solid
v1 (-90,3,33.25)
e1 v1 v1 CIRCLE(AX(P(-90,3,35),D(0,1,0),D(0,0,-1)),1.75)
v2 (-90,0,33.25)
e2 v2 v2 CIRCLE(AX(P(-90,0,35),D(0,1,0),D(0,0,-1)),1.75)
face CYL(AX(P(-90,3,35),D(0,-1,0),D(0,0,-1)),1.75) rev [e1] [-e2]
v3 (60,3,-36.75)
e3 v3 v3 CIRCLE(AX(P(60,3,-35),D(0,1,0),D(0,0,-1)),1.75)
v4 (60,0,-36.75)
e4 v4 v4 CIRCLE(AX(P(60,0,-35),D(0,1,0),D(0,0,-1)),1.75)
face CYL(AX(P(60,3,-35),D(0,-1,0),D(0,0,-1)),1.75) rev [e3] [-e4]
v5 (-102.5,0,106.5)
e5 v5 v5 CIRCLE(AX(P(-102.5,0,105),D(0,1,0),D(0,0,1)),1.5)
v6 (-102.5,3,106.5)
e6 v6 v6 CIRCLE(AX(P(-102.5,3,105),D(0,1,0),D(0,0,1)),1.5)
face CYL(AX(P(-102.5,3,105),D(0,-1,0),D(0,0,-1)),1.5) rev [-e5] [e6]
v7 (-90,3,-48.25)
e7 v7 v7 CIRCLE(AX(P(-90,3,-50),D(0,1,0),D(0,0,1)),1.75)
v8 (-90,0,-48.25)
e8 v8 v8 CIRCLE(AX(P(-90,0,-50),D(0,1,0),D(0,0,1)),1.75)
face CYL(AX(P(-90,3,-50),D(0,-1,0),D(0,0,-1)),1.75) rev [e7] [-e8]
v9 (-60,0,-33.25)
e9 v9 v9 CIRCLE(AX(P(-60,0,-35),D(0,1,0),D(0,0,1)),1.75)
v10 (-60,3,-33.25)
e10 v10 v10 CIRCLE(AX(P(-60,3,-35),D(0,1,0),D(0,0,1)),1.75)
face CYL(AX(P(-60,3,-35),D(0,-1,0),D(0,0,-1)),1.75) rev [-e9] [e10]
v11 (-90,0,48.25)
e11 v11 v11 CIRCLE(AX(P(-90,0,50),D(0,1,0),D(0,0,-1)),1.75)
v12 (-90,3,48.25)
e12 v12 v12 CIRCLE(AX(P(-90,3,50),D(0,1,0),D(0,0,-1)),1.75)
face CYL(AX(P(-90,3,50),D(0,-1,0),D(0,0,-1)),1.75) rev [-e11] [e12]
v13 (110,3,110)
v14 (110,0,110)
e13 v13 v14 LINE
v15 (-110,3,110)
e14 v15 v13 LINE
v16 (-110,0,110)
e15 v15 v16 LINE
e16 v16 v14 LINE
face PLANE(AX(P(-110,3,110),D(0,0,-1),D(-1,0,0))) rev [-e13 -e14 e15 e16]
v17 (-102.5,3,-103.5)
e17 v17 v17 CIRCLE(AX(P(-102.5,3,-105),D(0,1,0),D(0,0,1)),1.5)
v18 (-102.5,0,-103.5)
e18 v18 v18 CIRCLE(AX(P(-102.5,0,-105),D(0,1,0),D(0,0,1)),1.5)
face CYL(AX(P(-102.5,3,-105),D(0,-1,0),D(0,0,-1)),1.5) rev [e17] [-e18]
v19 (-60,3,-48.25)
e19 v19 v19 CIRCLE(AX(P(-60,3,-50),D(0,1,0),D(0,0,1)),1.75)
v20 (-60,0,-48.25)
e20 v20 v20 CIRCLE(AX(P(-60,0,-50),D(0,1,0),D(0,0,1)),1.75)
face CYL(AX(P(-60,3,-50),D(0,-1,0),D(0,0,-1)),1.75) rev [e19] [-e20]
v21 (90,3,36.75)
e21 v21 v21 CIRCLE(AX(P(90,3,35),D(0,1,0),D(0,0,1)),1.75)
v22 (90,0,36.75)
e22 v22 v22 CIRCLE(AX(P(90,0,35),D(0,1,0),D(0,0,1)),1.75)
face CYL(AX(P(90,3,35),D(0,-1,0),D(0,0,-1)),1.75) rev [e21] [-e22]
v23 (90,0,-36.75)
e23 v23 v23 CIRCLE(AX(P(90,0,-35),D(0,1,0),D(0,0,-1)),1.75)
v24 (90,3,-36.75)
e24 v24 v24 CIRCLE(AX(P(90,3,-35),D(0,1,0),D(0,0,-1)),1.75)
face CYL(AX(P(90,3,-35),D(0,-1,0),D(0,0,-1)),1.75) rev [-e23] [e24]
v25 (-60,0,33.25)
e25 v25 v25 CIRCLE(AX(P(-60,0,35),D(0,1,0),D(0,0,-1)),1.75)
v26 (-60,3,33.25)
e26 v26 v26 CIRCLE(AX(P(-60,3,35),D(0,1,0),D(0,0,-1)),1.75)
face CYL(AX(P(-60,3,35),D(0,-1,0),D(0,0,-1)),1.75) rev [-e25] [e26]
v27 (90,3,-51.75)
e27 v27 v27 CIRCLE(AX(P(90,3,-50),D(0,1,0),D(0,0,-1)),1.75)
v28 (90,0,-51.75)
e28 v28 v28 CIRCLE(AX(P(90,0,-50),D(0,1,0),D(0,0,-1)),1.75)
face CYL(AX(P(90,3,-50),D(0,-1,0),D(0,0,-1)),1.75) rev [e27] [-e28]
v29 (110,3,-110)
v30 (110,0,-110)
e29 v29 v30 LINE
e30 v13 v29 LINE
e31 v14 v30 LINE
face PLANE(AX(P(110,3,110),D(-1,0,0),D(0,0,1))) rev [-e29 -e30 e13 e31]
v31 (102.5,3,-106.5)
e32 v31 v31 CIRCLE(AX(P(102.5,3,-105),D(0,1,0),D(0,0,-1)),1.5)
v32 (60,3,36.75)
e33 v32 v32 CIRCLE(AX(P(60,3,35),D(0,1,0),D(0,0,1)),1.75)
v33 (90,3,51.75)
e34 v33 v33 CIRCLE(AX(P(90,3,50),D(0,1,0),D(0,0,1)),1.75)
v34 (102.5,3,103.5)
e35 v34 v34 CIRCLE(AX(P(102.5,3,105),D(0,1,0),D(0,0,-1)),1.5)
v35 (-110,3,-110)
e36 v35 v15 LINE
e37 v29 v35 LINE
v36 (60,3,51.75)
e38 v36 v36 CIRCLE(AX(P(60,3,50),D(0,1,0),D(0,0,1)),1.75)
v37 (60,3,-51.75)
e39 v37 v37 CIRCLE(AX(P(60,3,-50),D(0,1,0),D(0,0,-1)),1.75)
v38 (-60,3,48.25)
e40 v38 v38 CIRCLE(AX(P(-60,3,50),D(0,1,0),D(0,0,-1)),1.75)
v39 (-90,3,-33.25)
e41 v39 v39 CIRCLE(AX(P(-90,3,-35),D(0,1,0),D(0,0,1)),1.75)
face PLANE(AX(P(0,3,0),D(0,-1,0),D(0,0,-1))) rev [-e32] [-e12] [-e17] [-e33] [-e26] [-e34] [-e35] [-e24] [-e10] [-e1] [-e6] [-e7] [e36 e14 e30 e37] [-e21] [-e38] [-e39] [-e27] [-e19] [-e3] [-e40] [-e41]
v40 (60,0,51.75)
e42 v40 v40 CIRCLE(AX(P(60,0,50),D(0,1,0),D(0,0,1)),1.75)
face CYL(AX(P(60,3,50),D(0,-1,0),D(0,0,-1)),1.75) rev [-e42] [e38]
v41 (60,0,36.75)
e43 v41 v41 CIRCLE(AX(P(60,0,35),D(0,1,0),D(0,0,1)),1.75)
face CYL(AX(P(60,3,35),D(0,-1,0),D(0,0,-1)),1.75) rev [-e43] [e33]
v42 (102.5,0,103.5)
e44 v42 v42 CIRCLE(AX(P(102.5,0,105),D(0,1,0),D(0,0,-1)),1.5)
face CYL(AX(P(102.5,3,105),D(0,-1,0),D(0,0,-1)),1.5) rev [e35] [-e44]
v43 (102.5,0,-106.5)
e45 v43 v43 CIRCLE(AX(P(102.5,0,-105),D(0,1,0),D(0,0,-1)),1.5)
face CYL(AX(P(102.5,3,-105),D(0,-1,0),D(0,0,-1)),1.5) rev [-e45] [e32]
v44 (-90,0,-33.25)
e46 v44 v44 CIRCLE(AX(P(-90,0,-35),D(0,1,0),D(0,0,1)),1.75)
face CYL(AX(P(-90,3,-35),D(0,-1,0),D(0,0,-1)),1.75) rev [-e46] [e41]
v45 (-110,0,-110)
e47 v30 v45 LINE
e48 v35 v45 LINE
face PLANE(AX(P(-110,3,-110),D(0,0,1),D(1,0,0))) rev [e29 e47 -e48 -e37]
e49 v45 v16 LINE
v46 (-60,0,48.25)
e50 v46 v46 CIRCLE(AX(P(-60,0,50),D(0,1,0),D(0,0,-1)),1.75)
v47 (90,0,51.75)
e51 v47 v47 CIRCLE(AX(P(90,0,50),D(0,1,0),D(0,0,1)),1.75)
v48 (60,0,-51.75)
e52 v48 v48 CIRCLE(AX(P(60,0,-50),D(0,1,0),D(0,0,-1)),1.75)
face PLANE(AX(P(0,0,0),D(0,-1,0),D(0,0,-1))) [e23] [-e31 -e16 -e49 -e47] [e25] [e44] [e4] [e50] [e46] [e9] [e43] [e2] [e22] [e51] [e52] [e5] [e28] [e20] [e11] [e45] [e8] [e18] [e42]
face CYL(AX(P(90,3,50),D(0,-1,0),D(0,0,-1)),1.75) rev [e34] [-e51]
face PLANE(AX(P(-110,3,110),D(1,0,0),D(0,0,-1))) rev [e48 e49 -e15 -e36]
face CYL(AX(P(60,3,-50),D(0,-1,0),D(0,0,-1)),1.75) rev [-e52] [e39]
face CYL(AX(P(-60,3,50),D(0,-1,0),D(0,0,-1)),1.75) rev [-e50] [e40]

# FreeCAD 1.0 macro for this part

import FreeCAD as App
import Part
import Sketcher
from FreeCAD import Vector


def add_polygon(sketch, points):
    """Adds a closed chain of lines whose ends are joined by coincident constraints."""
    first, n = sketch.GeometryCount, len(points)
    for a, b in zip(points, points[1:] + points[:1]):
        sketch.addGeometry(Part.LineSegment(App.Vector(*a, 0), App.Vector(*b, 0)), False)
    for i in range(n):
        sketch.addConstraint(Sketcher.Constraint("Coincident", first + i, 2, first + (i + 1) % n, 1))

doc = App.newDocument("Part")
body = doc.addObject("PartDesign::Body", "Body")

sketch1 = body.newObject("Sketcher::SketchObject", "Sketch")
sketch1.AttachmentSupport = (doc.getObject("XZ_Plane"), [""])
sketch1.MapMode = "FlatFace"
add_polygon(sketch1, [(-110, -110), (-110, 110), (110, 110), (110, -110)])
sketch1.addGeometry(Part.Circle(Vector(-102.5, 105, 0), Vector(0, 0, 1), 1.5), False)
sketch1.addGeometry(Part.Circle(Vector(-90, 50, 0), Vector(0, 0, 1), 1.8), False)
sketch1.addGeometry(Part.Circle(Vector(-90, 35, 0), Vector(0, 0, 1), 1.8), False)
sketch1.addGeometry(Part.Circle(Vector(-60, 50, 0), Vector(0, 0, 1), 1.8), False)
sketch1.addGeometry(Part.Circle(Vector(-60, 35, 0), Vector(0, 0, 1), 1.8), False)
sketch1.addGeometry(Part.Circle(Vector(102.5, 105, 0), Vector(0, 0, 1), 1.5), False)
sketch1.addGeometry(Part.Circle(Vector(60, 50, 0), Vector(0, 0, 1), 1.8), False)
sketch1.addGeometry(Part.Circle(Vector(60, 35, 0), Vector(0, 0, 1), 1.8), False)
sketch1.addGeometry(Part.Circle(Vector(90, 50, 0), Vector(0, 0, 1), 1.8), False)
sketch1.addGeometry(Part.Circle(Vector(90, 35, 0), Vector(0, 0, 1), 1.8), False)
sketch1.addGeometry(Part.Circle(Vector(-90, -35, 0), Vector(0, 0, 1), 1.8), False)
sketch1.addGeometry(Part.Circle(Vector(-90, -50, 0), Vector(0, 0, 1), 1.8), False)
sketch1.addGeometry(Part.Circle(Vector(-60, -35, 0), Vector(0, 0, 1), 1.8), False)
sketch1.addGeometry(Part.Circle(Vector(-60, -50, 0), Vector(0, 0, 1), 1.8), False)
sketch1.addGeometry(Part.Circle(Vector(-102.5, -105, 0), Vector(0, 0, 1), 1.5), False)
sketch1.addGeometry(Part.Circle(Vector(60, -35, 0), Vector(0, 0, 1), 1.8), False)
sketch1.addGeometry(Part.Circle(Vector(60, -50, 0), Vector(0, 0, 1), 1.8), False)
sketch1.addGeometry(Part.Circle(Vector(90, -35, 0), Vector(0, 0, 1), 1.8), False)
sketch1.addGeometry(Part.Circle(Vector(90, -50, 0), Vector(0, 0, 1), 1.8), False)
sketch1.addGeometry(Part.Circle(Vector(102.5, -105, 0), Vector(0, 0, 1), 1.5), False)
sketch1.addConstraint([
    Sketcher.Constraint("Vertical", 0),
    Sketcher.Constraint("Horizontal", 1),
    Sketcher.Constraint("Vertical", 2),
    Sketcher.Constraint("Horizontal", 3),
    Sketcher.Constraint("Equal", 5, 6),
    Sketcher.Constraint("Equal", 6, 7),
    Sketcher.Constraint("Equal", 7, 8),
    Sketcher.Constraint("Equal", 4, 9),
    Sketcher.Constraint("Equal", 8, 10),
    Sketcher.Constraint("Equal", 10, 11),
    Sketcher.Constraint("Equal", 11, 12),
    Sketcher.Constraint("Equal", 12, 13),
    Sketcher.Constraint("Equal", 13, 14),
    Sketcher.Constraint("Equal", 14, 15),
    Sketcher.Constraint("Equal", 15, 16),
    Sketcher.Constraint("Equal", 16, 17),
    Sketcher.Constraint("Equal", 9, 18),
    Sketcher.Constraint("Equal", 17, 19),
    Sketcher.Constraint("Equal", 19, 20),
    Sketcher.Constraint("Equal", 20, 21),
    Sketcher.Constraint("Equal", 21, 22),
    Sketcher.Constraint("Equal", 18, 23),
    Sketcher.Constraint("Symmetric", 13, 3, 14, 3, -1, 1),
    Sketcher.Constraint("Symmetric", 12, 3, 15, 3, -1, 1),
    Sketcher.Constraint("Symmetric", 11, 3, 16, 3, -1, 1),
    Sketcher.Constraint("Symmetric", 10, 3, 17, 3, -1, 1),
    Sketcher.Constraint("Symmetric", 9, 3, 18, 3, -1, 1),
    Sketcher.Constraint("Symmetric", 8, 3, 19, 3, -1, 1),
    Sketcher.Constraint("Symmetric", 7, 3, 20, 3, -1, 1),
    Sketcher.Constraint("Symmetric", 6, 3, 21, 3, -1, 1),
    Sketcher.Constraint("Symmetric", 5, 3, 22, 3, -1, 1),
    Sketcher.Constraint("Symmetric", 4, 3, 23, 3, -1, 1),
    Sketcher.Constraint("Symmetric", 0, 2, 2, 2, -1, 1),
    Sketcher.Constraint("Symmetric", 4, 3, 9, 3, -2),
    Sketcher.Constraint("Symmetric", 7, 3, 10, 3, -2),
    Sketcher.Constraint("Symmetric", 8, 3, 11, 3, -2),
    Sketcher.Constraint("Symmetric", 5, 3, 12, 3, -2),
    Sketcher.Constraint("Symmetric", 6, 3, 13, 3, -2),
    Sketcher.Constraint("Horizontal", 5, 3, 7, 3),
    Sketcher.Constraint("Horizontal", 6, 3, 8, 3),
    Sketcher.Constraint("Vertical", 5, 3, 6, 3),
    Sketcher.Constraint("Vertical", 7, 3, 8, 3),
    Sketcher.Constraint("Equal", 3, 0),
    Sketcher.Constraint("Diameter", 4, 3.0),
    Sketcher.Constraint("Diameter", 5, 3.5),
    Sketcher.Constraint("DistanceX", 1, 1, 1, 2, 220.0),
    Sketcher.Constraint("DistanceY", -1, 1, 4, 3, 105.0),
    Sketcher.Constraint("DistanceX", 5, 3, -1, 1, 90.0),
    Sketcher.Constraint("DistanceY", -1, 1, 5, 3, 50.0),
    Sketcher.Constraint("DistanceY", -1, 1, 6, 3, 35.0),
    Sketcher.Constraint("DistanceX", 7, 3, -1, 1, 60.0),
    Sketcher.Constraint("DistanceX", 4, 3, 9, 3, 205.0),
])
pad1 = body.newObject("PartDesign::Pad", "Pad")
pad1.Profile = sketch1
pad1.Length = 3
pad1.Reversed = True

doc.recompute()
